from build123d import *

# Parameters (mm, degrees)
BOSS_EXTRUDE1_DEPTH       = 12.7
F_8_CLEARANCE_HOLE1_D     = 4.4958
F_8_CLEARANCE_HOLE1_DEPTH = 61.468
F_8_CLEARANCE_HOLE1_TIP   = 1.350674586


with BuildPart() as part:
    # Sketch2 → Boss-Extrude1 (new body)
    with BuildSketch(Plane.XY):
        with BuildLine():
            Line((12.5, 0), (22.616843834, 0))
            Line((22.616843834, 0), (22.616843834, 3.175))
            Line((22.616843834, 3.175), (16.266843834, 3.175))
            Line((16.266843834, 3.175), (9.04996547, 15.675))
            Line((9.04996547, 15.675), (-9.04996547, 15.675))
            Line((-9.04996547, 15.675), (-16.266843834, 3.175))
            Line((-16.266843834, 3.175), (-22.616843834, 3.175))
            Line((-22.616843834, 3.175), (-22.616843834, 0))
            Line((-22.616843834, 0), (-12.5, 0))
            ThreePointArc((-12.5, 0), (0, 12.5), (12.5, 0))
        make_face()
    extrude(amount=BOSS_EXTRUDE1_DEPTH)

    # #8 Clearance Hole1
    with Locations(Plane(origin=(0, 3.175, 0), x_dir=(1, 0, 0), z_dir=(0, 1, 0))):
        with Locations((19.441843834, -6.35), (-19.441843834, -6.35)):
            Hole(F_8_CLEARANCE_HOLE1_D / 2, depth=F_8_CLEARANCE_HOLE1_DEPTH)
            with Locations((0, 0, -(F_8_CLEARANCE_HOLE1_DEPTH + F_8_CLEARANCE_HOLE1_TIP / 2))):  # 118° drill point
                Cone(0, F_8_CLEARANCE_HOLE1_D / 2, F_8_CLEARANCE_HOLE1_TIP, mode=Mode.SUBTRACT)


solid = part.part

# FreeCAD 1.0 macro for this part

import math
import FreeCAD as App
import Part
import Sketcher

V = App.Vector
Q = App.Units.Quantity

doc = App.newDocument("Part")
body = doc.addObject("PartDesign::Body", "Body")

sketch1 = doc.addObject("Sketcher::SketchObject", "Sketch")
body.addObject(sketch1)
sketch1.AttachmentSupport = (doc.XY_Plane, [""])
sketch1.MapMode = "FlatFace"
sketch1.addGeometry([
    Part.LineSegment(V(12.5, 0, 0), V(22.6, 0, 0)),
    Part.LineSegment(V(22.6, 0, 0), V(22.6, 3.2, 0)),
    Part.LineSegment(V(22.6, 3.2, 0), V(16.3, 3.2, 0)),
    Part.LineSegment(V(16.3, 3.2, 0), V(9, 15.7, 0)),
    Part.LineSegment(V(9, 15.7, 0), V(-9, 15.7, 0)),
    Part.LineSegment(V(-9, 15.7, 0), V(-16.3, 3.2, 0)),
    Part.LineSegment(V(-16.3, 3.2, 0), V(-22.6, 3.2, 0)),
    Part.LineSegment(V(-22.6, 3.2, 0), V(-22.6, 0, 0)),
    Part.LineSegment(V(-22.6, 0, 0), V(-12.5, 0, 0)),
    Part.ArcOfCircle(Part.Circle(V(0, 0, 0), V(0, 0, 1), 12.5), math.radians(0), math.radians(180)),
], False)
sketch1.addConstraint([
    Sketcher.Constraint("Coincident", 0, 2, 1, 1),
    Sketcher.Constraint("Coincident", 1, 2, 2, 1),
    Sketcher.Constraint("Coincident", 2, 2, 3, 1),
    Sketcher.Constraint("Coincident", 3, 2, 4, 1),
    Sketcher.Constraint("Coincident", 4, 2, 5, 1),
    Sketcher.Constraint("Coincident", 5, 2, 6, 1),
    Sketcher.Constraint("Coincident", 6, 2, 7, 1),
    Sketcher.Constraint("Coincident", 7, 2, 8, 1),
    Sketcher.Constraint("Coincident", 8, 2, 9, 2),
    Sketcher.Constraint("Coincident", 9, 1, 0, 1),
    Sketcher.Constraint("Horizontal", 0),
    Sketcher.Constraint("Vertical", 1),
    Sketcher.Constraint("Horizontal", 2),
    Sketcher.Constraint("Horizontal", 4),
    Sketcher.Constraint("Horizontal", 6),
    Sketcher.Constraint("Vertical", 7),
    Sketcher.Constraint("Horizontal", 8),
    Sketcher.Constraint("Coincident", 9, 3, -1, 1),
    Sketcher.Constraint("Symmetric", 0, 2, 7, 2, -1, 1),
    Sketcher.Constraint("Symmetric", 2, 2, 5, 2, -2),
    Sketcher.Constraint("PointOnObject", 0, 2, -1),
    Sketcher.Constraint("Equal", 3, 5),
    Sketcher.Constraint("Angle", 3, Q("120 deg")),
    Sketcher.Constraint("DistanceX", 2, 2, 2, 1, Q("0.25 in")),
    Sketcher.Constraint("DistanceY", 1, 1, 1, 2, Q("0.125 in")),
    Sketcher.Constraint("Radius", 9, Q("12.5 mm")),
    Sketcher.Constraint("DistanceX", 4, 2, 4, 1, Q("18.099931 mm")),
    Sketcher.Constraint("DistanceY", -1, 1, 3, 2, Q("15.675 mm")),
])
pad1 = doc.addObject("PartDesign::Pad", "Pad")
body.addObject(pad1)
pad1.Profile = sketch1
pad1.Length = Q("0.5 in")

sketch2 = doc.addObject("Sketcher::SketchObject", "Sketch001")
body.addObject(sketch2)
sketch2.AttachmentSupport = (doc.XZ_Plane, [""])
sketch2.MapMode = "FlatFace"
sketch2.AttachmentOffset = App.Placement(V(0, 0, -0.125 * 25.4), App.Rotation())
sketch2.addGeometry([
    Part.Circle(V(19.4, 6.3, 0), V(0, 0, 1), 2.2),
    Part.Circle(V(-19.4, 6.3, 0), V(0, 0, 1), 2.2),
], False)
sketch2.addConstraint([
    Sketcher.Constraint("Equal", 0, 1),
    Sketcher.Constraint("Symmetric", 0, 3, 1, 3, -2),
    Sketcher.Constraint("Diameter", 0, Q("0.177 in")),
    Sketcher.Constraint("DistanceY", -1, 1, 0, 3, Q("0.25 in")),
    Sketcher.Constraint("DistanceX", -1, 1, 0, 3, Q("19.441844 mm")),
])
doc.recompute()
hole = doc.addObject("PartDesign::Hole", "Hole")
body.addObject(hole)
hole.Profile = sketch2
hole.ThreadType = "None"
hole.Diameter = Q("0.177 in")
hole.DepthType = "Dimension"
hole.Depth = Q("2.42 in")
hole.DrillPoint = "Angled"
hole.DrillPointAngle = 118
hole.Reversed = True

doc.recompute()
